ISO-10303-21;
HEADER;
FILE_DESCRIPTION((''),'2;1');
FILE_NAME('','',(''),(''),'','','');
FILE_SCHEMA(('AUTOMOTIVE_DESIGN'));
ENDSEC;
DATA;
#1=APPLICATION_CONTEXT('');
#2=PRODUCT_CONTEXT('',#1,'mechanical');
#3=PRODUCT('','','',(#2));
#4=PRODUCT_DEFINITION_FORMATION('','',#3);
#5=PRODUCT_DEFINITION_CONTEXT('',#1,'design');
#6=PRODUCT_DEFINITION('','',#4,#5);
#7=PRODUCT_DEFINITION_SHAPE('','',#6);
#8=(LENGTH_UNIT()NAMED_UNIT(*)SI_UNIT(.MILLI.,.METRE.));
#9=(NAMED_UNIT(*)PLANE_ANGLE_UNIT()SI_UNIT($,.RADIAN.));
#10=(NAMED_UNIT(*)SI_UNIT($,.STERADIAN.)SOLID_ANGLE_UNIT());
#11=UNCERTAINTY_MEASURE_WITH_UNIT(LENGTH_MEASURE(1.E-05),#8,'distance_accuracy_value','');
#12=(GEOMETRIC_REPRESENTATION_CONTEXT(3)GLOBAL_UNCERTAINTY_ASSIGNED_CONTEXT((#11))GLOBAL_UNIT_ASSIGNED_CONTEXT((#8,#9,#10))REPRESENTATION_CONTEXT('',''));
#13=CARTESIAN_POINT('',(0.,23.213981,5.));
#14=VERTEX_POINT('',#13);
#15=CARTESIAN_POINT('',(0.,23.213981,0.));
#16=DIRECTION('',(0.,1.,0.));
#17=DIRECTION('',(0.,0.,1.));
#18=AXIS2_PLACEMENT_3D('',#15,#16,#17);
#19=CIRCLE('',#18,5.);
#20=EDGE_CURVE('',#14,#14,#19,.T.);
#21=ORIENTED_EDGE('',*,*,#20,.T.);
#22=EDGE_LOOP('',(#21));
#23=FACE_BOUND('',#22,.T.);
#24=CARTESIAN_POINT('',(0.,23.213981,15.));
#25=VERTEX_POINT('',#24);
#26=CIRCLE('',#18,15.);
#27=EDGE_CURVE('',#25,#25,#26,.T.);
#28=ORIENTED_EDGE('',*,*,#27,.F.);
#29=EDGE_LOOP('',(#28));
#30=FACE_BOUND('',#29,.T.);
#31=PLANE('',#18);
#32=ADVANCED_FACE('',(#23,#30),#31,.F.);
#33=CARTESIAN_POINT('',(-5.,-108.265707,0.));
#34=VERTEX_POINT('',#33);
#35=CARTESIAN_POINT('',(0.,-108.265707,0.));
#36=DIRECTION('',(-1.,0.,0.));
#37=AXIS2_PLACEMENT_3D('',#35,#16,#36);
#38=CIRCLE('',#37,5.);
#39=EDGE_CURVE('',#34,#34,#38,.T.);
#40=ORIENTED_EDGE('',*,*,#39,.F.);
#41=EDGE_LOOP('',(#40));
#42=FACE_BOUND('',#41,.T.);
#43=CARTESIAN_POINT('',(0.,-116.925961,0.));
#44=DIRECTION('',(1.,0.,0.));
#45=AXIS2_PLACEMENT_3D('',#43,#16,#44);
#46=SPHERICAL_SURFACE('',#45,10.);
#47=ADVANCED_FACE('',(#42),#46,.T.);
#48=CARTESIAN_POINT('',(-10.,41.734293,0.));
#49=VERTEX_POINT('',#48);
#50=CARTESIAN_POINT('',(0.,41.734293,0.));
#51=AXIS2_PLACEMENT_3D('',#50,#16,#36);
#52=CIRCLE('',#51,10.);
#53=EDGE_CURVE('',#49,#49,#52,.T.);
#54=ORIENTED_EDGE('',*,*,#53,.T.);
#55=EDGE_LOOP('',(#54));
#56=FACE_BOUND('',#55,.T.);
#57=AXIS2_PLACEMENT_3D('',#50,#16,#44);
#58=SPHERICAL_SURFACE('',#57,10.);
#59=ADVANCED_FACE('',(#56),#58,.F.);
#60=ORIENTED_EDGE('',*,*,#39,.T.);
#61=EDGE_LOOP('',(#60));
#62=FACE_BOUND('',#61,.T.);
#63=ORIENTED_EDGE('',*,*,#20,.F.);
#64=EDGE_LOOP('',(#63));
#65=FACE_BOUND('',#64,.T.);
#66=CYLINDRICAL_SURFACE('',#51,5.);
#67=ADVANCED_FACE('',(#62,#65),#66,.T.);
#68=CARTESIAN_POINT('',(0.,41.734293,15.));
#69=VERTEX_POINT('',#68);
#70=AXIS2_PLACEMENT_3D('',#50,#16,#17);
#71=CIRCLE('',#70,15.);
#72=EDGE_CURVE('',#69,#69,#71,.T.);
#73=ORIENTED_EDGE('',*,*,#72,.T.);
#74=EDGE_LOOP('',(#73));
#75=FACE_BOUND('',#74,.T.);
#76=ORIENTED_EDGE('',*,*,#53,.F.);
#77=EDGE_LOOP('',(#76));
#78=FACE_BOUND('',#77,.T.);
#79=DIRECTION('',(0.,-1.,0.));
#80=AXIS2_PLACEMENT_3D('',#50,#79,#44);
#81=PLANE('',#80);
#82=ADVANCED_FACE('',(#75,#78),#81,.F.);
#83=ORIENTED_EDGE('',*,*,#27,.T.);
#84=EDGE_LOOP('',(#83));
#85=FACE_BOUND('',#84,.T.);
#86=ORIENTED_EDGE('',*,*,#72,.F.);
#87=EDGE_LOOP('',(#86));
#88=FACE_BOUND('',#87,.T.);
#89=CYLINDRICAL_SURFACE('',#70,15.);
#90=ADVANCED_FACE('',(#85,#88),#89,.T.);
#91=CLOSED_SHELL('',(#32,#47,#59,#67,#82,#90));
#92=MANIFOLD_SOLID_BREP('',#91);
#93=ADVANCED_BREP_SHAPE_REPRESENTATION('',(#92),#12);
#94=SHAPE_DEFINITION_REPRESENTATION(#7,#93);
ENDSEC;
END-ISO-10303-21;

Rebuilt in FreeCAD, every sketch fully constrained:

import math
import FreeCAD as App
import Part
import Sketcher

V = App.Vector
Q = App.Units.Quantity

doc = App.newDocument("Part")
body = doc.addObject("PartDesign::Body", "Body")

# Sketch on XY plane
sketch1 = body.newObject("Sketcher::SketchObject", "Sketch")
sketch1.AttachmentSupport = (doc.getObject("XY_Plane"), [""])
sketch1.MapMode = "FlatFace"
sketch1.addGeometry([
    Part.LineSegment(V(5, 41.734293, 0), V(0, 41.734293, 0)),
    Part.LineSegment(V(0, 41.734293, 0), V(0, -126.925961, 0)),
    Part.ArcOfCircle(Part.Circle(V(0, -116.925961, 0), V(0, 0, 1), 10), math.radians(-90), math.radians(60)),
    Part.LineSegment(V(5, -108.265707, 0), V(5, 41.734293, 0)),
], False)
sketch1.addConstraint([
    Sketcher.Constraint("Coincident", 0, 2, 1, 1),
    Sketcher.Constraint("Coincident", 1, 2, 2, 1),
    Sketcher.Constraint("Coincident", 2, 2, 3, 1),
    Sketcher.Constraint("Coincident", 3, 2, 0, 1),
    Sketcher.Constraint("Horizontal", 0),
    Sketcher.Constraint("Vertical", 1),
    Sketcher.Constraint("Vertical", 3),
    Sketcher.Constraint("PointOnObject", 2, 3, -2),
    Sketcher.Constraint("PointOnObject", 0, 2, -2),
    Sketcher.Constraint("Radius", 2, Q("10 mm")),
    Sketcher.Constraint("DistanceX", 0, 2, 0, 1, Q("5 mm")),
    Sketcher.Constraint("DistanceY", 3, 1, 3, 2, Q("150 mm")),
    Sketcher.Constraint("DistanceY", 2, 3, -1, 1, Q("116.925961 mm")),
])
revolution = body.newObject("PartDesign::Revolution", "Revolution")
revolution.Profile = sketch1
revolution.ReferenceAxis = (sketch1, ["V_Axis"])
revolution.Angle = 360

# Sketch on XY plane
sketch2 = body.newObject("Sketcher::SketchObject", "Sketch001")
sketch2.AttachmentSupport = (doc.getObject("XY_Plane"), [""])
sketch2.MapMode = "FlatFace"
sketch2.addGeometry([
    Part.LineSegment(V(0, 41.734293, 0), V(0, 23.213981, 0)),
    Part.LineSegment(V(0, 23.213981, 0), V(15, 23.213981, 0)),
    Part.LineSegment(V(15, 23.213981, 0), V(15, 41.734293, 0)),
    Part.LineSegment(V(15, 41.734293, 0), V(0, 41.734293, 0)),
], False)
sketch2.addConstraint([
    Sketcher.Constraint("Coincident", 0, 2, 1, 1),
    Sketcher.Constraint("Coincident", 1, 2, 2, 1),
    Sketcher.Constraint("Coincident", 2, 2, 3, 1),
    Sketcher.Constraint("Coincident", 3, 2, 0, 1),
    Sketcher.Constraint("Vertical", 0),
    Sketcher.Constraint("Horizontal", 1),
    Sketcher.Constraint("Vertical", 2),
    Sketcher.Constraint("Horizontal", 3),
    Sketcher.Constraint("PointOnObject", 0, 2, -2),
    Sketcher.Constraint("DistanceX", 1, 1, 1, 2, Q("15 mm")),
    Sketcher.Constraint("DistanceY", 0, 2, 0, 1, Q("18.520312 mm")),
    Sketcher.Constraint("DistanceY", -1, 1, 0, 2, Q("23.213981 mm")),
])
revolution2 = body.newObject("PartDesign::Revolution", "Revolution001")
revolution2.Profile = sketch2
revolution2.ReferenceAxis = (sketch2, ["V_Axis"])
revolution2.Angle = 360

# Sketch on XY plane
sketch3 = body.newObject("Sketcher::SketchObject", "Sketch002")
sketch3.AttachmentSupport = (doc.getObject("XY_Plane"), [""])
sketch3.MapMode = "FlatFace"
sketch3.addGeometry([
    Part.LineSegment(V(0, 41.734293, 0), V(0, 31.734293, 0)),
    Part.ArcOfCircle(Part.Circle(V(0, 41.734293, 0), V(0, 0, 1), 10), math.radians(-90), math.radians(0)),
    Part.LineSegment(V(10, 41.734293, 0), V(0, 41.734293, 0)),
], False)
sketch3.addConstraint([
    Sketcher.Constraint("Coincident", 0, 2, 1, 1),
    Sketcher.Constraint("Coincident", 1, 2, 2, 1),
    Sketcher.Constraint("Coincident", 2, 2, 0, 1),
    Sketcher.Constraint("Vertical", 0),
    Sketcher.Constraint("Horizontal", 2),
    Sketcher.Constraint("Coincident", 2, 2, 1, 3),
    Sketcher.Constraint("PointOnObject", 1, 3, -2),
    Sketcher.Constraint("Radius", 1, Q("10 mm")),
    Sketcher.Constraint("DistanceY", -1, 1, 1, 3, Q("41.734293 mm")),
])
groove = body.newObject("PartDesign::Groove", "Groove")
groove.Profile = sketch3
groove.ReferenceAxis = (sketch3, ["V_Axis"])
groove.Angle = 360

doc.recompute()
